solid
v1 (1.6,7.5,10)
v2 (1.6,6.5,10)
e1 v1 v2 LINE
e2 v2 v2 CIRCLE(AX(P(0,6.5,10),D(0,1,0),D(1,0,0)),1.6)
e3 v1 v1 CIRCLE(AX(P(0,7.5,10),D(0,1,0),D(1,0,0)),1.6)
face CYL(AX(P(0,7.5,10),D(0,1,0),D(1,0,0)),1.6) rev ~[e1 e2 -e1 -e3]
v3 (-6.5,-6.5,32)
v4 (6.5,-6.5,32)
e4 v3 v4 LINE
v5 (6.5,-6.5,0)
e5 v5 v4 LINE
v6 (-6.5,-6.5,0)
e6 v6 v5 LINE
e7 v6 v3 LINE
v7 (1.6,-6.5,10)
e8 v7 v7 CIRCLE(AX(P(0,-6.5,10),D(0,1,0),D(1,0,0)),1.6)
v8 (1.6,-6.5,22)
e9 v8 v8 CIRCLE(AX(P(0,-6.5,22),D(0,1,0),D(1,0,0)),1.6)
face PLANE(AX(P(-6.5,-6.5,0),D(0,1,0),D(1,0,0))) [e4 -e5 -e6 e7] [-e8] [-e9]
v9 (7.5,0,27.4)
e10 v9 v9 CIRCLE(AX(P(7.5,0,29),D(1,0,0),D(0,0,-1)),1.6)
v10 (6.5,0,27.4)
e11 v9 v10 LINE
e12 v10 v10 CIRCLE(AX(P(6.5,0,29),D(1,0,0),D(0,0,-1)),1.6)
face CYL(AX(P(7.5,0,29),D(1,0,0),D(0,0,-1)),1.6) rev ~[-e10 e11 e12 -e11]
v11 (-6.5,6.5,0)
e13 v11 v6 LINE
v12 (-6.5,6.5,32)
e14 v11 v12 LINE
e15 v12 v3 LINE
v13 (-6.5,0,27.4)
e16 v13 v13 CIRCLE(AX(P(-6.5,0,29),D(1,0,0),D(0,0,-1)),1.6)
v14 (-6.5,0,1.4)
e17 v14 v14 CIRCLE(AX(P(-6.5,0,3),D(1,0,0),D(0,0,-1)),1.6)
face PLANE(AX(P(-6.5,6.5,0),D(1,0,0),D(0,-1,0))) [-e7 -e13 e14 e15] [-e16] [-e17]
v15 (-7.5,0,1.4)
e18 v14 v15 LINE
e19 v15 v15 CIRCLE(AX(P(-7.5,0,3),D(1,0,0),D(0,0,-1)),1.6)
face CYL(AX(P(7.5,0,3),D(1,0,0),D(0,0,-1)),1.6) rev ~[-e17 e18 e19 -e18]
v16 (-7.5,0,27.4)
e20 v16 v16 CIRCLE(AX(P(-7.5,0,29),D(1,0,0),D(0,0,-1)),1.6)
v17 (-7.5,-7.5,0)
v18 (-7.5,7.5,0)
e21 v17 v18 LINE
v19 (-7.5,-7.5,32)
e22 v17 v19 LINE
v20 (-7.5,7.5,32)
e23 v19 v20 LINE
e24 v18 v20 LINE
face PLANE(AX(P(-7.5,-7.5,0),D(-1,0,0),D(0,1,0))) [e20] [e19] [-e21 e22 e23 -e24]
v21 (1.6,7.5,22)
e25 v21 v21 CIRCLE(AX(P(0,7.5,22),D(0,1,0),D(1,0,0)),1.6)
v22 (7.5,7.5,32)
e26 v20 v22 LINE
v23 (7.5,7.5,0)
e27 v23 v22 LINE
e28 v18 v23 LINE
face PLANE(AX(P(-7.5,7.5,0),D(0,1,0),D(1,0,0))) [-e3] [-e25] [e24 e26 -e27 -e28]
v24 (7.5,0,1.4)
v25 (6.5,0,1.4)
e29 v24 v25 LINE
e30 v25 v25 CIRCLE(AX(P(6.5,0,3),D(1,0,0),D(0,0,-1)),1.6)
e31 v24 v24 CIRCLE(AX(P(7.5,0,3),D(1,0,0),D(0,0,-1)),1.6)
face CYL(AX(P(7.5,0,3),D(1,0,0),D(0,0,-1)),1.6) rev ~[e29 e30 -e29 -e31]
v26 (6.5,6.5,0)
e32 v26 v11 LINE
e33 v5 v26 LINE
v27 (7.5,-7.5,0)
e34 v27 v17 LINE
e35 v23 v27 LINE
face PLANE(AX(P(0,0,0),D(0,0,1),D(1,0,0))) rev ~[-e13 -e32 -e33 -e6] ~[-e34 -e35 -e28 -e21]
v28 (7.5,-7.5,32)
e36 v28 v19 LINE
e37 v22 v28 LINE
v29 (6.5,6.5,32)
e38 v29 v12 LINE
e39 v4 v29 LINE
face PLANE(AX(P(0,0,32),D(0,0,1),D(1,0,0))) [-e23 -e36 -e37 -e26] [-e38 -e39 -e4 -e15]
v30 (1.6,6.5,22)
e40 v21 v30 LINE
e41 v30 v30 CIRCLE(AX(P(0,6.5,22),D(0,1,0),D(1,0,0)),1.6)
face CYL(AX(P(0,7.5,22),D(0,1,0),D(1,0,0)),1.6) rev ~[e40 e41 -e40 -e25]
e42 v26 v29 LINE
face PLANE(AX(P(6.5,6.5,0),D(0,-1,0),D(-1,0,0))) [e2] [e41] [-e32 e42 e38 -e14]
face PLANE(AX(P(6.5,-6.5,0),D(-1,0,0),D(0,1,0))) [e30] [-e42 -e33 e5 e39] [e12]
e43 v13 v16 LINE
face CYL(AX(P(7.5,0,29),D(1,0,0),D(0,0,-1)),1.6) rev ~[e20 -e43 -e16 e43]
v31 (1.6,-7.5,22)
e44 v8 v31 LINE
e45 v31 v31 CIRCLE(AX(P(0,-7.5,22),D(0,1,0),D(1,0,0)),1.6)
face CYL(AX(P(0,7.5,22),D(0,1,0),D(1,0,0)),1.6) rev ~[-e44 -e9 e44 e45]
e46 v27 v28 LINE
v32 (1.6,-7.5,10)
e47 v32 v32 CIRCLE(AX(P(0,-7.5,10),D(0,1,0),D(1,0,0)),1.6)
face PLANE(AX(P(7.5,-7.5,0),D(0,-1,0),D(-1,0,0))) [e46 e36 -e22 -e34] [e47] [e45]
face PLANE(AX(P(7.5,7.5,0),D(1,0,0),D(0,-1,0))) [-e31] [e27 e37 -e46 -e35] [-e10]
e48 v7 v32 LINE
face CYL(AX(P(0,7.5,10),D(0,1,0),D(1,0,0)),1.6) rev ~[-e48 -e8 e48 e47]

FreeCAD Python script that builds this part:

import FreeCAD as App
import Part
import Sketcher
Q = App.Units.Quantity


def add_polygon(sketch, points):
    """Adds a closed chain of lines whose ends are joined by coincident constraints."""
    first, n = sketch.GeometryCount, len(points)
    for a, b in zip(points, points[1:] + points[:1]):
        sketch.addGeometry(Part.LineSegment(App.Vector(*a, 0), App.Vector(*b, 0)), False)
    for i in range(n):
        sketch.addConstraint(Sketcher.Constraint("Coincident", first + i, 2, first + (i + 1) % n, 1))

doc = App.newDocument("Part")
body = doc.addObject("PartDesign::Body", "Body")

sketch1 = body.newObject("Sketcher::SketchObject", "Sketch")
sketch1.AttachmentSupport = (doc.getObject("XY_Plane"), [""])
sketch1.MapMode = "FlatFace"
add_polygon(sketch1, [(-8, -8), (8, -8), (8, 8), (-8, 8)])
add_polygon(sketch1, [(-6, 6), (6, 6), (6, -6), (-6, -6)])
sketch1.addConstraint([
    Sketcher.Constraint("Horizontal", 0),
    Sketcher.Constraint("Vertical", 1),
    Sketcher.Constraint("Horizontal", 2),
    Sketcher.Constraint("Vertical", 3),
    Sketcher.Constraint("Horizontal", 4),
    Sketcher.Constraint("Vertical", 5),
    Sketcher.Constraint("Horizontal", 6),
    Sketcher.Constraint("Vertical", 7),
    Sketcher.Constraint("Symmetric", 0, 2, 2, 2, -1, 1),
    Sketcher.Constraint("Symmetric", 4, 2, 6, 2, -1, 1),
    Sketcher.Constraint("Equal", 2, 1),
    Sketcher.Constraint("Equal", 6, 5),
    Sketcher.Constraint("DistanceX", 0, 1, 0, 2, Q("15 mm")),
    Sketcher.Constraint("DistanceX", 4, 2, 1, 2, Q("1 mm")),
])
pad1 = body.newObject("PartDesign::Pad", "Pad")
pad1.Profile = sketch1
pad1.Length = 32

sketch2 = body.newObject("Sketcher::SketchObject", "Sketch001")
sketch2.AttachmentSupport = (doc.getObject("YZ_Plane"), [""])
sketch2.MapMode = "FlatFace"
sketch2.AttachmentOffset = App.Placement(App.Vector(0, 0, 7.5), App.Rotation())
sketch2.addGeometry([
    Part.Circle(App.Vector(0, 29, 0), App.Vector(0, 0, 1), 1.6),
    Part.Circle(App.Vector(0, 3, 0), App.Vector(0, 0, 1), 1.6),
], False)
sketch2.addConstraint([
    Sketcher.Constraint("Equal", 0, 1),
    Sketcher.Constraint("PointOnObject", 0, 3, -2),
    Sketcher.Constraint("PointOnObject", 1, 3, -2),
    Sketcher.Constraint("Diameter", 0, Q("3.2 mm")),
    Sketcher.Constraint("DistanceY", -1, 1, 0, 3, Q("29 mm")),
    Sketcher.Constraint("DistanceY", -1, 1, 1, 3, Q("3 mm")),
])
pocket1 = body.newObject("PartDesign::Pocket", "Pocket")
pocket1.Profile = sketch2
pocket1.Type = "ThroughAll"

sketch3 = body.newObject("Sketcher::SketchObject", "Sketch002")
sketch3.AttachmentSupport = (doc.getObject("XZ_Plane"), [""])
sketch3.MapMode = "FlatFace"
sketch3.AttachmentOffset = App.Placement(App.Vector(0, 0, -7.5), App.Rotation())
sketch3.addGeometry([
    Part.Circle(App.Vector(0, 10, 0), App.Vector(0, 0, 1), 1.6),
    Part.Circle(App.Vector(0, 22, 0), App.Vector(0, 0, 1), 1.6),
], False)
sketch3.addConstraint([
    Sketcher.Constraint("Equal", 0, 1),
    Sketcher.Constraint("PointOnObject", 0, 3, -2),
    Sketcher.Constraint("PointOnObject", 1, 3, -2),
    Sketcher.Constraint("Diameter", 0, Q("3.2 mm")),
    Sketcher.Constraint("DistanceY", -1, 1, 0, 3, Q("10 mm")),
    Sketcher.Constraint("DistanceY", -1, 1, 1, 3, Q("22 mm")),
])
pocket2 = body.newObject("PartDesign::Pocket", "Pocket001")
pocket2.Profile = sketch3
pocket2.Type = "ThroughAll"
pocket2.Reversed = True

doc.recompute()
